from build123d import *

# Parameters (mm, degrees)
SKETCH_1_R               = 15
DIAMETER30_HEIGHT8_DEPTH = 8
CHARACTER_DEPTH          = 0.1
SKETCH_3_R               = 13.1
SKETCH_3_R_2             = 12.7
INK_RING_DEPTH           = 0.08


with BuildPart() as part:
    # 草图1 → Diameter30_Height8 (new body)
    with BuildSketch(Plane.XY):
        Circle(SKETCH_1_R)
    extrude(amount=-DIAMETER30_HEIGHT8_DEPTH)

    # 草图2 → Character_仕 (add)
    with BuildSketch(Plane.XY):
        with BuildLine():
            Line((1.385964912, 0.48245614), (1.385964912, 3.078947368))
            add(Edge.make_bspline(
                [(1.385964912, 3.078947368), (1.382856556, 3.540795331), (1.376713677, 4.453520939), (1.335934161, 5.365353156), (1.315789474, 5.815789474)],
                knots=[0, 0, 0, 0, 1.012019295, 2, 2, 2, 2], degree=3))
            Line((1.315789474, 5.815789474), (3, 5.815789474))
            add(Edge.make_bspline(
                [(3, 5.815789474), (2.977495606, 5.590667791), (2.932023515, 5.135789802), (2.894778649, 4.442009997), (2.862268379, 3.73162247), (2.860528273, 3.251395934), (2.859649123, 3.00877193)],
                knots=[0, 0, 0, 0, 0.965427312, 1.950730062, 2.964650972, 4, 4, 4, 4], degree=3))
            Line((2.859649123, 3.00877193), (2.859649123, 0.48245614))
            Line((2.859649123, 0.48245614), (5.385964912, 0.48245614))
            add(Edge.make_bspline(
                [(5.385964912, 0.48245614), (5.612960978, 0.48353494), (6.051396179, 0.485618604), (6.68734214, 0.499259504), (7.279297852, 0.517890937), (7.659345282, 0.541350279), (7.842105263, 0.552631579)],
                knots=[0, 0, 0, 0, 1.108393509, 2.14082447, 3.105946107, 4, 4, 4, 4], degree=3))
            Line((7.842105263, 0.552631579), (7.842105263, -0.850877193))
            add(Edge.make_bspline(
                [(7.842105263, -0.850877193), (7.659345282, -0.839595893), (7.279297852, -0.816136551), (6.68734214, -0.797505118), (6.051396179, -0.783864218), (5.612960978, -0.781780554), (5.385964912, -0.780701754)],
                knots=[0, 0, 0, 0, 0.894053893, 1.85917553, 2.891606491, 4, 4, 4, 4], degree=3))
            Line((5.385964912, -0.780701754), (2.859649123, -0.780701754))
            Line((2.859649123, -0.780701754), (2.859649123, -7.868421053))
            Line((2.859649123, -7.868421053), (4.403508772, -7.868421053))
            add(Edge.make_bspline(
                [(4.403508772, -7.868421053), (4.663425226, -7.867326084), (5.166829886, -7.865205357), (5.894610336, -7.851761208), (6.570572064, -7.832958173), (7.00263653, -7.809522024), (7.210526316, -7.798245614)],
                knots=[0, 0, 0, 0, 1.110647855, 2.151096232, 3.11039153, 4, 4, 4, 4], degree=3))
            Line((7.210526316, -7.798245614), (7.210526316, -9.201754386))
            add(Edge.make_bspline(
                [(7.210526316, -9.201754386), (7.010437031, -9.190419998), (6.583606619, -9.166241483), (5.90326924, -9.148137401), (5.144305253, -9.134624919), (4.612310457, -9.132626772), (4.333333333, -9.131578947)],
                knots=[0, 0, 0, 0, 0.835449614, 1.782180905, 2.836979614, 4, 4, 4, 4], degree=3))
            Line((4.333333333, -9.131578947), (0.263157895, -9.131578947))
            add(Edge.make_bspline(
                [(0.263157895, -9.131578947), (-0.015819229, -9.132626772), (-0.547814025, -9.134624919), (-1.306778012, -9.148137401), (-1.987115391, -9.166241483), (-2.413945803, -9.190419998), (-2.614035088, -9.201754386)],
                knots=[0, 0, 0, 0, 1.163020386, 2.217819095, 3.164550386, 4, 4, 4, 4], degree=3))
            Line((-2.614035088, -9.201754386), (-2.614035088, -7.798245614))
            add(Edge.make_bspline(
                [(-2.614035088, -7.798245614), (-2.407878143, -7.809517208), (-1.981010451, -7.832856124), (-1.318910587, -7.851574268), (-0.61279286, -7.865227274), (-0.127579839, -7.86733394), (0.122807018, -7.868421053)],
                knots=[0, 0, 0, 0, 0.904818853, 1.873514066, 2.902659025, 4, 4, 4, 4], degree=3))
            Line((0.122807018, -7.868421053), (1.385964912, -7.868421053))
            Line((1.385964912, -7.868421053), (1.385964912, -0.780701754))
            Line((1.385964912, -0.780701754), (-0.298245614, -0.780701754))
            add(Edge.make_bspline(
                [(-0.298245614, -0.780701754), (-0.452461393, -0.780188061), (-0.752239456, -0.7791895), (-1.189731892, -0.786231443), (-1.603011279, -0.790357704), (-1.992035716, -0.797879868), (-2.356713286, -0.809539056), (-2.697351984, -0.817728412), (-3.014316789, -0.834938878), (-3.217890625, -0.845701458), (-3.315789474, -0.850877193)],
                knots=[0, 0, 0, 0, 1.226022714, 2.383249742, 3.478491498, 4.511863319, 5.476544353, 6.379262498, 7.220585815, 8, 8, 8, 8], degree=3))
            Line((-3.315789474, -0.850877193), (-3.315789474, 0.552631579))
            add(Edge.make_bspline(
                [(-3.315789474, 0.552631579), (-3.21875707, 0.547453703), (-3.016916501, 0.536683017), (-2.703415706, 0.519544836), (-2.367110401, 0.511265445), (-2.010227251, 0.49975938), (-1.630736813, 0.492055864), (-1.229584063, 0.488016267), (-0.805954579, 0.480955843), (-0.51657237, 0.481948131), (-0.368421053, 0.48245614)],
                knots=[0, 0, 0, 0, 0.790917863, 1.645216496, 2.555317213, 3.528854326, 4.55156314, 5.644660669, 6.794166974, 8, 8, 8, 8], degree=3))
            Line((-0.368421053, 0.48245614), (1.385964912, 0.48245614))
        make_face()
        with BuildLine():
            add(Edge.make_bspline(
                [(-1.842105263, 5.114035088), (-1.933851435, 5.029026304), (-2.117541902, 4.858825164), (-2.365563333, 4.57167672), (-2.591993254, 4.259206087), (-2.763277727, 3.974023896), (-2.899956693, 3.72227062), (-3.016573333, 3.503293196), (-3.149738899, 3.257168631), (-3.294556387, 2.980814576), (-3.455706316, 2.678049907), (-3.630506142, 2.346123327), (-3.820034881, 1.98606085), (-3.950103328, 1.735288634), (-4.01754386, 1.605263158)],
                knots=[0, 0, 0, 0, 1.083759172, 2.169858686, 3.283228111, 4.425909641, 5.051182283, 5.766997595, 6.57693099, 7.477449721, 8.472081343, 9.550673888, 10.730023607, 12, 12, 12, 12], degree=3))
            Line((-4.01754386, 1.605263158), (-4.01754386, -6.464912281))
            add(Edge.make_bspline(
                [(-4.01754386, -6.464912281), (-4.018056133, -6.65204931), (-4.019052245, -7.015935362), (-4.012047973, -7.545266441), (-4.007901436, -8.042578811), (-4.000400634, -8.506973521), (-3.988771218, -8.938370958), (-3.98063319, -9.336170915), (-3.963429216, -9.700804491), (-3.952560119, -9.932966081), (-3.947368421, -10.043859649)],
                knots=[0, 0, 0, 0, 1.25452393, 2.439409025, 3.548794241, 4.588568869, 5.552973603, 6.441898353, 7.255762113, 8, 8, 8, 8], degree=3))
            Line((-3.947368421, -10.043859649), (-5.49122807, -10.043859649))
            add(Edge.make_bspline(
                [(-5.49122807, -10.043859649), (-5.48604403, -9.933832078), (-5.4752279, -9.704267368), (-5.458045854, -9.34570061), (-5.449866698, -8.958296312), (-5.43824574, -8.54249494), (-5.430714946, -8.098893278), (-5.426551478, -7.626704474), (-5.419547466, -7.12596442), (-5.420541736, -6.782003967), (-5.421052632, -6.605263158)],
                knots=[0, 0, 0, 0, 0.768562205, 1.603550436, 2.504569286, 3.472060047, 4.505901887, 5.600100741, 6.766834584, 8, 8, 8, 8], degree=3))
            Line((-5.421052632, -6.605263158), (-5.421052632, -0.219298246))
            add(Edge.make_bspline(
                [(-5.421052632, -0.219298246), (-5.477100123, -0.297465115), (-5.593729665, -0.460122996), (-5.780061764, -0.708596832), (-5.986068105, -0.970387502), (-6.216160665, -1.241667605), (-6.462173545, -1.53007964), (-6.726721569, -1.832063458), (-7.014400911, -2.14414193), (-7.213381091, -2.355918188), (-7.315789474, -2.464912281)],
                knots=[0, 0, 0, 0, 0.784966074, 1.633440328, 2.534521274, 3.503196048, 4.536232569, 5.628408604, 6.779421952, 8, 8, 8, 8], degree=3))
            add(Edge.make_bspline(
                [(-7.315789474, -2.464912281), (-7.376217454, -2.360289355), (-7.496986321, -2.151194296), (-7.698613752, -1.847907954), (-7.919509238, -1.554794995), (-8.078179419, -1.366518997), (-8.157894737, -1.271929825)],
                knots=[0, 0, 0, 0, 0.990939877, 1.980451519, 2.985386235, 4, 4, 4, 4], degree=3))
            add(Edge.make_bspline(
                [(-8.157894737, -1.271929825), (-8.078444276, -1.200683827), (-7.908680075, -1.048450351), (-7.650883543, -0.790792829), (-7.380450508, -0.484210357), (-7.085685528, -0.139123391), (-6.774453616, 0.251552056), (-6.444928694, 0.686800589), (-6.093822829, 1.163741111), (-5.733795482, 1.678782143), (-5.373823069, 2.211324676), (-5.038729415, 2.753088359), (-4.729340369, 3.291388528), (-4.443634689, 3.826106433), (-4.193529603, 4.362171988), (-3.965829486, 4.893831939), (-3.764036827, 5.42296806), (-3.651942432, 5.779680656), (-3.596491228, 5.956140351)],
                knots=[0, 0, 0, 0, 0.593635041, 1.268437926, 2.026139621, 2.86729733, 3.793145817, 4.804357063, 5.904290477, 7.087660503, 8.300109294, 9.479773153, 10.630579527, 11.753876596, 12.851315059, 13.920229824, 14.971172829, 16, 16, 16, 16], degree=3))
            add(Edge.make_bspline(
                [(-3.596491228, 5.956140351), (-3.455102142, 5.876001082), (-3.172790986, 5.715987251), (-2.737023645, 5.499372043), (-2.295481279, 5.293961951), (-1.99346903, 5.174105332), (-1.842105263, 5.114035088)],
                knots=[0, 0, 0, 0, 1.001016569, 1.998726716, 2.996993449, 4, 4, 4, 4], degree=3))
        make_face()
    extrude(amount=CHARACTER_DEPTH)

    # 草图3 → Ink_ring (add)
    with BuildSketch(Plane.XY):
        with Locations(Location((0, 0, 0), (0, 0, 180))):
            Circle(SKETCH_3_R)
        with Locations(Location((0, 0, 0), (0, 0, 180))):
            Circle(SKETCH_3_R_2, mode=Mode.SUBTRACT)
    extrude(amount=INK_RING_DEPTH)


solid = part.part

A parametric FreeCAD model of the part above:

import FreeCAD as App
import Part
import Sketcher

V = App.Vector

doc = App.newDocument("Part")
params = doc.addObject("Spreadsheet::Sheet", "Params")
for row, (alias, value) in enumerate([
    ("sketch1_diameter", "30 mm"),
    ("pad1_length", "8 mm"),
    ("pad2_length", "0.1 mm"),
    ("sketch3_diameter", "26.2 mm"),
    ("sketch3_diameter2", "25.4 mm"),
    ("pad3_length", "0.08 mm"),
], start=1):
    params.set(f"A{row}", alias)
    params.set(f"B{row}", "=" + value)
    params.setAlias(f"B{row}", alias)

body = doc.addObject("PartDesign::Body", "Body")

# Sketch on XY plane
sketch1 = body.newObject("Sketcher::SketchObject", "Sketch")
sketch1.AttachmentSupport = (doc.getObject("XY_Plane"), [""])
sketch1.MapMode = "FlatFace"
sketch1.addGeometry(Part.Circle(V(0, 0, 0), V(0, 0, 1), 15), False)
sketch1.addConstraint(Sketcher.Constraint("Coincident", 0, 3, -1, 1))
sketch1.addConstraint(Sketcher.Constraint("Diameter", 0, 30.0))
sketch1.setExpression("Constraints[1]", "Params.sketch1_diameter")
pad1 = body.newObject("PartDesign::Pad", "Pad")
pad1.Profile = sketch1
pad1.setExpression("Length", "Params.pad1_length")
pad1.Reversed = True

# Sketch on XY plane
sketch2 = body.newObject("Sketcher::SketchObject", "Sketch001")
sketch2.AttachmentSupport = (doc.getObject("XY_Plane"), [""])
sketch2.MapMode = "FlatFace"
sketch2.addGeometry(Part.LineSegment(V(1.385965, 3.078947, 0), V(1.385965, 0.482456, 0)), False)
sketch2.addGeometry(Part.LineSegment(V(1.385965, 0.482456, 0), V(-0.368421, 0.482456, 0)), False)
sketch2.addGeometry(Part.BSplineCurve([V(-3.315789, 0.552632, 0), V(-3.218757, 0.547454, 0), V(-3.016917, 0.536683, 0), V(-2.703416, 0.519545, 0), V(-2.36711, 0.511265, 0), V(-2.010227, 0.499759, 0), V(-1.630737, 0.492056, 0), V(-1.229584, 0.488016, 0), V(-0.805955, 0.480956, 0), V(-0.516572, 0.481948, 0), V(-0.368421, 0.482456, 0)], [4, 1, 1, 1, 1, 1, 1, 1, 4], [0, 0.790917863, 1.645216496, 2.555317213, 3.528854326, 4.55156314, 5.644660669, 6.794166974, 8], False, 3, [1, 1, 1, 1, 1, 1, 1, 1, 1, 1, 1], False), False)
sketch2.addGeometry(Part.LineSegment(V(-3.315789, 0.552632, 0), V(-3.315789, -0.850877, 0)), False)
sketch2.addGeometry(Part.BSplineCurve([V(-0.298246, -0.780702, 0), V(-0.452461, -0.780188, 0), V(-0.752239, -0.779189, 0), V(-1.189732, -0.786231, 0), V(-1.603011, -0.790358, 0), V(-1.992036, -0.79788, 0), V(-2.356713, -0.809539, 0), V(-2.697352, -0.817728, 0), V(-3.014317, -0.834939, 0), V(-3.217891, -0.845701, 0), V(-3.315789, -0.850877, 0)], [4, 1, 1, 1, 1, 1, 1, 1, 4], [0, 1.226022714, 2.383249742, 3.478491498, 4.511863319, 5.476544353, 6.379262498, 7.220585815, 8], False, 3, [1, 1, 1, 1, 1, 1, 1, 1, 1, 1, 1], False), False)
sketch2.addGeometry(Part.LineSegment(V(-0.298246, -0.780702, 0), V(1.385965, -0.780702, 0)), False)
sketch2.addGeometry(Part.LineSegment(V(1.385965, -0.780702, 0), V(1.385965, -7.868421, 0)), False)
sketch2.addGeometry(Part.LineSegment(V(1.385965, -7.868421, 0), V(0.122807, -7.868421, 0)), False)
sketch2.addGeometry(Part.BSplineCurve([V(-2.614035, -7.798246, 0), V(-2.407878, -7.809517, 0), V(-1.98101, -7.832856, 0), V(-1.318911, -7.851574, 0), V(-0.612793, -7.865227, 0), V(-0.12758, -7.867334, 0), V(0.122807, -7.868421, 0)], [4, 1, 1, 1, 4], [0, 0.904818853, 1.873514066, 2.902659025, 4], False, 3, [1, 1, 1, 1, 1, 1, 1], False), False)
sketch2.addGeometry(Part.LineSegment(V(-2.614035, -7.798246, 0), V(-2.614035, -9.201754, 0)), False)
sketch2.addGeometry(Part.BSplineCurve([V(0.263158, -9.131579, 0), V(-0.015819, -9.132627, 0), V(-0.547814, -9.134625, 0), V(-1.306778, -9.148137, 0), V(-1.987115, -9.166241, 0), V(-2.413946, -9.19042, 0), V(-2.614035, -9.201754, 0)], [4, 1, 1, 1, 4], [0, 1.163020386, 2.217819095, 3.164550386, 4], False, 3, [1, 1, 1, 1, 1, 1, 1], False), False)
sketch2.addGeometry(Part.LineSegment(V(0.263158, -9.131579, 0), V(4.333333, -9.131579, 0)), False)
sketch2.addGeometry(Part.BSplineCurve([V(7.210526, -9.201754, 0), V(7.010437, -9.19042, 0), V(6.583607, -9.166241, 0), V(5.903269, -9.148137, 0), V(5.144305, -9.134625, 0), V(4.61231, -9.132627, 0), V(4.333333, -9.131579, 0)], [4, 1, 1, 1, 4], [0, 0.835449614, 1.782180905, 2.836979614, 4], False, 3, [1, 1, 1, 1, 1, 1, 1], False), False)
sketch2.addGeometry(Part.LineSegment(V(7.210526, -9.201754, 0), V(7.210526, -7.798246, 0)), False)
sketch2.addGeometry(Part.BSplineCurve([V(4.403509, -7.868421, 0), V(4.663425, -7.867326, 0), V(5.16683, -7.865205, 0), V(5.89461, -7.851761, 0), V(6.570572, -7.832958, 0), V(7.002637, -7.809522, 0), V(7.210526, -7.798246, 0)], [4, 1, 1, 1, 4], [0, 1.110647855, 2.151096232, 3.11039153, 4], False, 3, [1, 1, 1, 1, 1, 1, 1], False), False)
sketch2.addGeometry(Part.LineSegment(V(4.403509, -7.868421, 0), V(2.859649, -7.868421, 0)), False)
sketch2.addGeometry(Part.LineSegment(V(2.859649, -7.868421, 0), V(2.859649, -0.780702, 0)), False)
sketch2.addGeometry(Part.LineSegment(V(2.859649, -0.780702, 0), V(5.385965, -0.780702, 0)), False)
sketch2.addGeometry(Part.BSplineCurve([V(7.842105, -0.850877, 0), V(7.659345, -0.839596, 0), V(7.279298, -0.816137, 0), V(6.687342, -0.797505, 0), V(6.051396, -0.783864, 0), V(5.612961, -0.781781, 0), V(5.385965, -0.780702, 0)], [4, 1, 1, 1, 4], [0, 0.894053893, 1.85917553, 2.891606491, 4], False, 3, [1, 1, 1, 1, 1, 1, 1], False), False)
sketch2.addGeometry(Part.LineSegment(V(7.842105, -0.850877, 0), V(7.842105, 0.552632, 0)), False)
sketch2.addGeometry(Part.BSplineCurve([V(5.385965, 0.482456, 0), V(5.612961, 0.483535, 0), V(6.051396, 0.485619, 0), V(6.687342, 0.49926, 0), V(7.279298, 0.517891, 0), V(7.659345, 0.54135, 0), V(7.842105, 0.552632, 0)], [4, 1, 1, 1, 4], [0, 1.108393509, 2.14082447, 3.105946107, 4], False, 3, [1, 1, 1, 1, 1, 1, 1], False), False)
sketch2.addGeometry(Part.LineSegment(V(5.385965, 0.482456, 0), V(2.859649, 0.482456, 0)), False)
sketch2.addGeometry(Part.LineSegment(V(2.859649, 0.482456, 0), V(2.859649, 3.008772, 0)), False)
sketch2.addGeometry(Part.BSplineCurve([V(3, 5.815789, 0), V(2.977496, 5.590668, 0), V(2.932024, 5.13579, 0), V(2.894779, 4.44201, 0), V(2.862268, 3.731622, 0), V(2.860528, 3.251396, 0), V(2.859649, 3.008772, 0)], [4, 1, 1, 1, 4], [0, 0.965427312, 1.950730062, 2.964650972, 4], False, 3, [1, 1, 1, 1, 1, 1, 1], False), False)
sketch2.addGeometry(Part.LineSegment(V(3, 5.815789, 0), V(1.315789, 5.815789, 0)), False)
sketch2.addGeometry(Part.BSplineCurve([V(1.385965, 3.078947, 0), V(1.382857, 3.540795, 0), V(1.376714, 4.453521, 0), V(1.335934, 5.365353, 0), V(1.315789, 5.815789, 0)], [4, 1, 4], [0, 1.012019295, 2], False, 3, [1, 1, 1, 1, 1], False), False)
sketch2.addGeometry(Part.BSplineCurve([V(-1.842105, 5.114035, 0), V(-1.933851, 5.029026, 0), V(-2.117542, 4.858825, 0), V(-2.365563, 4.571677, 0), V(-2.591993, 4.259206, 0), V(-2.763278, 3.974024, 0), V(-2.899957, 3.722271, 0), V(-3.016573, 3.503293, 0), V(-3.149739, 3.257169, 0), V(-3.294556, 2.980815, 0), V(-3.455706, 2.67805, 0), V(-3.630506, 2.346123, 0), V(-3.820035, 1.986061, 0), V(-3.950103, 1.735289, 0), V(-4.017544, 1.605263, 0)], [4, 1, 1, 1, 1, 1, 1, 1, 1, 1, 1, 1, 4], [0, 1.083759172, 2.169858686, 3.283228111, 4.425909641, 5.051182283, 5.766997595, 6.57693099, 7.477449721, 8.472081343, 9.550673888, 10.730023607, 12], False, 3, [1, 1, 1, 1, 1, 1, 1, 1, 1, 1, 1, 1, 1, 1, 1], False), False)
sketch2.addGeometry(Part.BSplineCurve([V(-3.596491, 5.95614, 0), V(-3.455102, 5.876001, 0), V(-3.172791, 5.715987, 0), V(-2.737024, 5.499372, 0), V(-2.295481, 5.293962, 0), V(-1.993469, 5.174105, 0), V(-1.842105, 5.114035, 0)], [4, 1, 1, 1, 4], [0, 1.001016569, 1.998726716, 2.996993449, 4], False, 3, [1, 1, 1, 1, 1, 1, 1], False), False)
sketch2.addGeometry(Part.BSplineCurve([V(-8.157895, -1.27193, 0), V(-8.078444, -1.200684, 0), V(-7.90868, -1.04845, 0), V(-7.650884, -0.790793, 0), V(-7.380451, -0.48421, 0), V(-7.085686, -0.139123, 0), V(-6.774454, 0.251552, 0), V(-6.444929, 0.686801, 0), V(-6.093823, 1.163741, 0), V(-5.733795, 1.678782, 0), V(-5.373823, 2.211325, 0), V(-5.038729, 2.753088, 0), V(-4.72934, 3.291389, 0), V(-4.443635, 3.826106, 0), V(-4.19353, 4.362172, 0), V(-3.965829, 4.893832, 0), V(-3.764037, 5.422968, 0), V(-3.651942, 5.779681, 0), V(-3.596491, 5.95614, 0)], [4, 1, 1, 1, 1, 1, 1, 1, 1, 1, 1, 1, 1, 1, 1, 1, 4], [0, 0.593635041, 1.268437926, 2.026139621, 2.86729733, 3.793145817, 4.804357063, 5.904290477, 7.087660503, 8.300109294, 9.479773153, 10.630579527, 11.753876596, 12.851315059, 13.920229824, 14.971172829, 16], False, 3, [1, 1, 1, 1, 1, 1, 1, 1, 1, 1, 1, 1, 1, 1, 1, 1, 1, 1, 1], False), False)
sketch2.addGeometry(Part.BSplineCurve([V(-7.315789, -2.464912, 0), V(-7.376217, -2.360289, 0), V(-7.496986, -2.151194, 0), V(-7.698614, -1.847908, 0), V(-7.919509, -1.554795, 0), V(-8.078179, -1.366519, 0), V(-8.157895, -1.27193, 0)], [4, 1, 1, 1, 4], [0, 0.990939877, 1.980451519, 2.985386235, 4], False, 3, [1, 1, 1, 1, 1, 1, 1], False), False)
sketch2.addGeometry(Part.BSplineCurve([V(-5.421053, -0.219298, 0), V(-5.4771, -0.297465, 0), V(-5.59373, -0.460123, 0), V(-5.780062, -0.708597, 0), V(-5.986068, -0.970388, 0), V(-6.216161, -1.241668, 0), V(-6.462174, -1.53008, 0), V(-6.726722, -1.832063, 0), V(-7.014401, -2.144142, 0), V(-7.213381, -2.355918, 0), V(-7.315789, -2.464912, 0)], [4, 1, 1, 1, 1, 1, 1, 1, 4], [0, 0.784966074, 1.633440328, 2.534521274, 3.503196048, 4.536232569, 5.628408604, 6.779421952, 8], False, 3, [1, 1, 1, 1, 1, 1, 1, 1, 1, 1, 1], False), False)
sketch2.addGeometry(Part.LineSegment(V(-5.421053, -0.219298, 0), V(-5.421053, -6.605263, 0)), False)
sketch2.addGeometry(Part.BSplineCurve([V(-5.491228, -10.04386, 0), V(-5.486044, -9.933832, 0), V(-5.475228, -9.704267, 0), V(-5.458046, -9.345701, 0), V(-5.449867, -8.958296, 0), V(-5.438246, -8.542495, 0), V(-5.430715, -8.098893, 0), V(-5.426551, -7.626704, 0), V(-5.419547, -7.125964, 0), V(-5.420542, -6.782004, 0), V(-5.421053, -6.605263, 0)], [4, 1, 1, 1, 1, 1, 1, 1, 4], [0, 0.768562205, 1.603550436, 2.504569286, 3.472060047, 4.505901887, 5.600100741, 6.766834584, 8], False, 3, [1, 1, 1, 1, 1, 1, 1, 1, 1, 1, 1], False), False)
sketch2.addGeometry(Part.LineSegment(V(-5.491228, -10.04386, 0), V(-3.947368, -10.04386, 0)), False)
sketch2.addGeometry(Part.BSplineCurve([V(-4.017544, -6.464912, 0), V(-4.018056, -6.652049, 0), V(-4.019052, -7.015935, 0), V(-4.012048, -7.545266, 0), V(-4.007901, -8.042579, 0), V(-4.000401, -8.506974, 0), V(-3.988771, -8.938371, 0), V(-3.980633, -9.336171, 0), V(-3.963429, -9.700804, 0), V(-3.95256, -9.932966, 0), V(-3.947368, -10.04386, 0)], [4, 1, 1, 1, 1, 1, 1, 1, 4], [0, 1.25452393, 2.439409025, 3.548794241, 4.588568869, 5.552973603, 6.441898353, 7.255762113, 8], False, 3, [1, 1, 1, 1, 1, 1, 1, 1, 1, 1, 1], False), False)
sketch2.addGeometry(Part.LineSegment(V(-4.017544, -6.464912, 0), V(-4.017544, 1.605263, 0)), False)
sketch2.addConstraint(Sketcher.Constraint("Block", 2))
sketch2.addConstraint(Sketcher.Constraint("Block", 4))
sketch2.addConstraint(Sketcher.Constraint("Block", 8))
sketch2.addConstraint(Sketcher.Constraint("Block", 10))
sketch2.addConstraint(Sketcher.Constraint("Block", 12))
sketch2.addConstraint(Sketcher.Constraint("Block", 14))
sketch2.addConstraint(Sketcher.Constraint("Block", 18))
sketch2.addConstraint(Sketcher.Constraint("Block", 20))
sketch2.addConstraint(Sketcher.Constraint("Block", 23))
sketch2.addConstraint(Sketcher.Constraint("Block", 25))
sketch2.addConstraint(Sketcher.Constraint("Block", 26))
sketch2.addConstraint(Sketcher.Constraint("Block", 27))
sketch2.addConstraint(Sketcher.Constraint("Block", 28))
sketch2.addConstraint(Sketcher.Constraint("Block", 29))
sketch2.addConstraint(Sketcher.Constraint("Block", 30))
sketch2.addConstraint(Sketcher.Constraint("Block", 32))
sketch2.addConstraint(Sketcher.Constraint("Block", 34))
sketch2.addConstraint(Sketcher.Constraint("Coincident", 0, 2, 1, 1))
sketch2.addConstraint(Sketcher.Constraint("Coincident", 1, 2, 2, 2))
sketch2.addConstraint(Sketcher.Constraint("Coincident", 2, 1, 3, 1))
sketch2.addConstraint(Sketcher.Constraint("Coincident", 3, 2, 4, 2))
sketch2.addConstraint(Sketcher.Constraint("Coincident", 4, 1, 5, 1))
sketch2.addConstraint(Sketcher.Constraint("Coincident", 5, 2, 6, 1))
sketch2.addConstraint(Sketcher.Constraint("Coincident", 6, 2, 7, 1))
sketch2.addConstraint(Sketcher.Constraint("Coincident", 7, 2, 8, 2))
sketch2.addConstraint(Sketcher.Constraint("Coincident", 8, 1, 9, 1))
sketch2.addConstraint(Sketcher.Constraint("Coincident", 9, 2, 10, 2))
sketch2.addConstraint(Sketcher.Constraint("Coincident", 10, 1, 11, 1))
sketch2.addConstraint(Sketcher.Constraint("Coincident", 11, 2, 12, 2))
sketch2.addConstraint(Sketcher.Constraint("Coincident", 12, 1, 13, 1))
sketch2.addConstraint(Sketcher.Constraint("Coincident", 13, 2, 14, 2))
sketch2.addConstraint(Sketcher.Constraint("Coincident", 14, 1, 15, 1))
sketch2.addConstraint(Sketcher.Constraint("Coincident", 15, 2, 16, 1))
sketch2.addConstraint(Sketcher.Constraint("Coincident", 16, 2, 17, 1))
sketch2.addConstraint(Sketcher.Constraint("Coincident", 17, 2, 18, 2))
sketch2.addConstraint(Sketcher.Constraint("Coincident", 18, 1, 19, 1))
sketch2.addConstraint(Sketcher.Constraint("Coincident", 19, 2, 20, 2))
sketch2.addConstraint(Sketcher.Constraint("Coincident", 20, 1, 21, 1))
sketch2.addConstraint(Sketcher.Constraint("Coincident", 21, 2, 22, 1))
sketch2.addConstraint(Sketcher.Constraint("Coincident", 22, 2, 23, 2))
sketch2.addConstraint(Sketcher.Constraint("Coincident", 23, 1, 24, 1))
sketch2.addConstraint(Sketcher.Constraint("Coincident", 24, 2, 25, 2))
sketch2.addConstraint(Sketcher.Constraint("Coincident", 25, 1, 0, 1))
sketch2.addConstraint(Sketcher.Constraint("Coincident", 30, 1, 31, 1))
sketch2.addConstraint(Sketcher.Constraint("Coincident", 31, 2, 32, 2))
sketch2.addConstraint(Sketcher.Constraint("Coincident", 32, 1, 33, 1))
sketch2.addConstraint(Sketcher.Constraint("Coincident", 33, 2, 34, 2))
sketch2.addConstraint(Sketcher.Constraint("Coincident", 34, 1, 35, 1))
sketch2.addConstraint(Sketcher.Constraint("Coincident", 35, 2, 26, 2))
sketch2.addConstraint(Sketcher.Constraint("Vertical", 0))
sketch2.addConstraint(Sketcher.Constraint("Horizontal", 1))
sketch2.addConstraint(Sketcher.Constraint("Horizontal", 5))
sketch2.addConstraint(Sketcher.Constraint("Vertical", 6))
sketch2.addConstraint(Sketcher.Constraint("Horizontal", 7))
sketch2.addConstraint(Sketcher.Constraint("Horizontal", 15))
sketch2.addConstraint(Sketcher.Constraint("Vertical", 16))
sketch2.addConstraint(Sketcher.Constraint("Horizontal", 17))
sketch2.addConstraint(Sketcher.Constraint("Horizontal", 21))
sketch2.addConstraint(Sketcher.Constraint("Vertical", 22))
sketch2.addConstraint(Sketcher.Constraint("Vertical", 0, 2, 5, 2))
sketch2.addConstraint(Sketcher.Constraint("Vertical", 16, 2, 21, 2))
pad2 = body.newObject("PartDesign::Pad", "Pad001")
pad2.Profile = sketch2
pad2.setExpression("Length", "Params.pad2_length")

# Sketch on XY plane
sketch3 = body.newObject("Sketcher::SketchObject", "Sketch002")
sketch3.AttachmentSupport = (doc.getObject("XY_Plane"), [""])
sketch3.MapMode = "FlatFace"
sketch3.addGeometry(Part.Circle(V(0, 0, 0), V(0, 0, 1), 13.1), False)
sketch3.addGeometry(Part.Circle(V(0, 0, 0), V(0, 0, 1), 12.7), False)
sketch3.addConstraint(Sketcher.Constraint("Coincident", 0, 3, -1, 1))
sketch3.addConstraint(Sketcher.Constraint("Coincident", 1, 3, -1, 1))
sketch3.addConstraint(Sketcher.Constraint("Diameter", 0, 26.2))
sketch3.addConstraint(Sketcher.Constraint("Diameter", 1, 25.4))
sketch3.setExpression("Constraints[2]", "Params.sketch3_diameter")
sketch3.setExpression("Constraints[3]", "Params.sketch3_diameter2")
pad3 = body.newObject("PartDesign::Pad", "Pad002")
pad3.Profile = sketch3
pad3.setExpression("Length", "Params.pad3_length")

doc.recompute()
